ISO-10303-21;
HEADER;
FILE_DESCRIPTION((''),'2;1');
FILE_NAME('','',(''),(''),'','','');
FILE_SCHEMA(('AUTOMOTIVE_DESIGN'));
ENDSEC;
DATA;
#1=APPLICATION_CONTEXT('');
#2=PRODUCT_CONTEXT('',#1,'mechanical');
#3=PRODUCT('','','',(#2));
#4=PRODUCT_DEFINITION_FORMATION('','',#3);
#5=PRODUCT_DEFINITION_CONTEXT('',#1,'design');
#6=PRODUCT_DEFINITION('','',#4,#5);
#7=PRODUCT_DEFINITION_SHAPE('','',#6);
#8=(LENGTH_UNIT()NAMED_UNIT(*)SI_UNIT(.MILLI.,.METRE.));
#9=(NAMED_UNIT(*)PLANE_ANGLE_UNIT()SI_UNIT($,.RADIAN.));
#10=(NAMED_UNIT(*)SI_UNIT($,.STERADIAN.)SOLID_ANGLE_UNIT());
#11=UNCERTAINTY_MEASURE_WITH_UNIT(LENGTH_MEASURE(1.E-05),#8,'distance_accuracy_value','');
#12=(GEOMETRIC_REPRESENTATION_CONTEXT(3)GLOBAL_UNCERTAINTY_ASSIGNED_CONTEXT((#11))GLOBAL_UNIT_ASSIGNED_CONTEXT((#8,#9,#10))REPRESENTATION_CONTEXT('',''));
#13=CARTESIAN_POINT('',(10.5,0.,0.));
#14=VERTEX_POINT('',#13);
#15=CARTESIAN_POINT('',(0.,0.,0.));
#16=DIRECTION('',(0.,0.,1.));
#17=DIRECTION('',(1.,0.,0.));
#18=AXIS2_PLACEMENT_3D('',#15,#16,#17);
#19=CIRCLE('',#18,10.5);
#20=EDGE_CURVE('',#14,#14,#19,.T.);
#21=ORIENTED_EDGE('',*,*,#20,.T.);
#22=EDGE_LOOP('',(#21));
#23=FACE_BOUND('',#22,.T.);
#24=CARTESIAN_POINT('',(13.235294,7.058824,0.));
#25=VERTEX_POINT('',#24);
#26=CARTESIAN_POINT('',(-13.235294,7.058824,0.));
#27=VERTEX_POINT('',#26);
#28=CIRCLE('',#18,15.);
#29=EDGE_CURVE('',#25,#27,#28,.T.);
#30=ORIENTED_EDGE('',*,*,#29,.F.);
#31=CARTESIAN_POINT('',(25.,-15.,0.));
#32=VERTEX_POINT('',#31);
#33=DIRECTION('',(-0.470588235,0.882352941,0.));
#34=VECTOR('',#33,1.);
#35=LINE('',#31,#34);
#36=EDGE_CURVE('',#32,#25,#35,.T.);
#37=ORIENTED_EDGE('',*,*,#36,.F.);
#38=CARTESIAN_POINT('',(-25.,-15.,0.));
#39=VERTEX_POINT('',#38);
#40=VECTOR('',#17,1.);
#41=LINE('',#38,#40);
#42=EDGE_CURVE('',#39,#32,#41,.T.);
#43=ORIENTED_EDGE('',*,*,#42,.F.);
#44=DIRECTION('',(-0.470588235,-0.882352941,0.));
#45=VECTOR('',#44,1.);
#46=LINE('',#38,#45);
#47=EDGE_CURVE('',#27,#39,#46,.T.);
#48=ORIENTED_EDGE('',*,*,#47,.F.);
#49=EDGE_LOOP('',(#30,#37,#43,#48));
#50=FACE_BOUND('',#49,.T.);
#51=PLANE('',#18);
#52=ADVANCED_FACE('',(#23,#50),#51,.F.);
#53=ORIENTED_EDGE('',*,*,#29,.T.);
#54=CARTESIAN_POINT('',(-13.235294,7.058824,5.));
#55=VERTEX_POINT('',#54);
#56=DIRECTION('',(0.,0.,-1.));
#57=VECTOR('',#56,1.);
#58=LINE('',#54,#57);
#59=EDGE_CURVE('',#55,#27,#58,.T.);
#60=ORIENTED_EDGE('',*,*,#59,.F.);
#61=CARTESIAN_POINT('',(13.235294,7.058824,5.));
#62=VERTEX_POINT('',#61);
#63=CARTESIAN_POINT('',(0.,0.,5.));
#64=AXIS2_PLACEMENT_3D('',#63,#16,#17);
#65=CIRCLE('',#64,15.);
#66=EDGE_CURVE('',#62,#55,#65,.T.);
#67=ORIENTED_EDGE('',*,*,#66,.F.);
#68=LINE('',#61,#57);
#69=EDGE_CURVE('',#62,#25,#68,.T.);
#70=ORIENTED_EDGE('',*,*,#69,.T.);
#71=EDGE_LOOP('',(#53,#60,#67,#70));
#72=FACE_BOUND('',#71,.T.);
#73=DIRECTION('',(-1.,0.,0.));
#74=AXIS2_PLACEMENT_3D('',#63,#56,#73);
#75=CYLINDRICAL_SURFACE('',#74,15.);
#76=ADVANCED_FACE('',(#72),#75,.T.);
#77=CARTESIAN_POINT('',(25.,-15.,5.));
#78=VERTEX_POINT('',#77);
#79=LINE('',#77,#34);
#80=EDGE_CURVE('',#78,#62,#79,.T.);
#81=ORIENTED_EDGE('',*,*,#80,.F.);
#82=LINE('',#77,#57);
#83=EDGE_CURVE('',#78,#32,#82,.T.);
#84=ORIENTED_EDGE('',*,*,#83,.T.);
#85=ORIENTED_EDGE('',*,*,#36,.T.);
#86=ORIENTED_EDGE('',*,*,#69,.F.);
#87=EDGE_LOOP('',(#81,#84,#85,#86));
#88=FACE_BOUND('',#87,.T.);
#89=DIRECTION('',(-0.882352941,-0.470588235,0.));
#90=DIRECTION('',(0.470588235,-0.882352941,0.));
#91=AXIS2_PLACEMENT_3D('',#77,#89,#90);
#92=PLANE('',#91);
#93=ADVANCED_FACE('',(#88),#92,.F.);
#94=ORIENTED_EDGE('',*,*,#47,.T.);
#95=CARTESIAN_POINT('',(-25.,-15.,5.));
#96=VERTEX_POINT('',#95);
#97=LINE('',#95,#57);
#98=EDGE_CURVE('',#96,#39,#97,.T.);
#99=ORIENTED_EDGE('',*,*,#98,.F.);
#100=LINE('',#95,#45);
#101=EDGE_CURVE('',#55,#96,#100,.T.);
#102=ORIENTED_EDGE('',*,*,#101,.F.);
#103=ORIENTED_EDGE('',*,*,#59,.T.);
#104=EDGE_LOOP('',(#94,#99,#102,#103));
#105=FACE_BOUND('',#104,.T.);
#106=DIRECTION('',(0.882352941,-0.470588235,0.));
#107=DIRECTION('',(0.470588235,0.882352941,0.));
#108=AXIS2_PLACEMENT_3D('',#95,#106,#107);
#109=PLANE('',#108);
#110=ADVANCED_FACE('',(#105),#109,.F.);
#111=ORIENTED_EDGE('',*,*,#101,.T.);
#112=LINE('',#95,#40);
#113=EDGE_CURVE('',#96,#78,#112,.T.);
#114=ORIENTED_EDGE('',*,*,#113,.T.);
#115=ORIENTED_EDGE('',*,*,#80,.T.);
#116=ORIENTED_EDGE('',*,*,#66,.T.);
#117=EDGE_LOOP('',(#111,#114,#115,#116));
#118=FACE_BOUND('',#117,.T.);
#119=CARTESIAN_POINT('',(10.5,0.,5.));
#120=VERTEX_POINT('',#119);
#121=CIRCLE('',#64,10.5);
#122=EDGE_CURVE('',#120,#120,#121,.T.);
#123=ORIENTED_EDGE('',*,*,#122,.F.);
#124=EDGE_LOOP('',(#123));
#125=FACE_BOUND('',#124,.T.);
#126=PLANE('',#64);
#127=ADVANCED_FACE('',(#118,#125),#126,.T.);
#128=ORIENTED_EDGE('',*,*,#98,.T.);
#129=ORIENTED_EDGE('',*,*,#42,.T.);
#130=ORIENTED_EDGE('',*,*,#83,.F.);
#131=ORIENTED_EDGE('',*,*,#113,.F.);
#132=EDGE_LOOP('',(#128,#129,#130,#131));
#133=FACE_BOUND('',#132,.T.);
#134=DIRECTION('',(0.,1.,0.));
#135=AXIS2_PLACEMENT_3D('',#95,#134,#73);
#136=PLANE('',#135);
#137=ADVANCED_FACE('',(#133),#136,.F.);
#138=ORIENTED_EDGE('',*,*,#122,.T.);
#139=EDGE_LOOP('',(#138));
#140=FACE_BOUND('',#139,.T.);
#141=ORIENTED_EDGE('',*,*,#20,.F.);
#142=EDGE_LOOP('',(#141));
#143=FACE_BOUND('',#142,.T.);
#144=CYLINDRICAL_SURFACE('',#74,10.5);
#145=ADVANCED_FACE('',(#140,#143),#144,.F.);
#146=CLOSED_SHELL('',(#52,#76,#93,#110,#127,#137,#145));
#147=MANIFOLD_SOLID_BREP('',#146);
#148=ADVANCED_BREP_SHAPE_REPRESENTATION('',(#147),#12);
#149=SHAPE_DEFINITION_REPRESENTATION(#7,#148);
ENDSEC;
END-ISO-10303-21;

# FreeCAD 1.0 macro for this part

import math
import FreeCAD as App
import Part
import Sketcher
from FreeCAD import Vector
Q = App.Units.Quantity

doc = App.newDocument("Part")
body = doc.addObject("PartDesign::Body", "Body")

sketch1 = body.newObject("Sketcher::SketchObject", "Sketch")
sketch1.AttachmentSupport = (doc.getObject("XY_Plane"), [""])
sketch1.MapMode = "FlatFace"
sketch1.addGeometry(Part.LineSegment(Vector(-25, -15, 0), Vector(25, -15, 0)), False)
sketch1.addGeometry(Part.LineSegment(Vector(25, -15, 0), Vector(13.235294, 7.058824, 0)), False)
sketch1.addGeometry(Part.ArcOfCircle(Part.Circle(Vector(0, 0, 0), Vector(0, 0, 1), 15), math.radians(28.072487), math.radians(151.927513)), False)
sketch1.addGeometry(Part.LineSegment(Vector(-13.235294, 7.058824, 0), Vector(-25, -15, 0)), False)
sketch1.addGeometry(Part.Circle(Vector(0, 0, 0), Vector(0, 0, 1), 10.5), False)
sketch1.addConstraint(Sketcher.Constraint("Coincident", 0, 2, 1, 1))
sketch1.addConstraint(Sketcher.Constraint("Tangent", 1, 2, 2, 1))
sketch1.addConstraint(Sketcher.Constraint("Tangent", 2, 2, 3, 1))
sketch1.addConstraint(Sketcher.Constraint("Coincident", 3, 2, 0, 1))
sketch1.addConstraint(Sketcher.Constraint("Horizontal", 0))
sketch1.addConstraint(Sketcher.Constraint("Coincident", 2, 3, -1, 1))
sketch1.addConstraint(Sketcher.Constraint("Coincident", 4, 3, -1, 1))
sketch1.addConstraint(Sketcher.Constraint("Horizontal", 1, 2, 2, 2))
sketch1.addConstraint(Sketcher.Constraint("Diameter", 4, Q("21 mm")))
sketch1.addConstraint(Sketcher.Constraint("Radius", 2, Q("15 mm")))
sketch1.addConstraint(Sketcher.Constraint("DistanceX", 0, 1, 0, 2, Q("50 mm")))
sketch1.addConstraint(Sketcher.Constraint("Distance", 1, Q("25 mm")))
pad1 = body.newObject("PartDesign::Pad", "Pad")
pad1.Profile = sketch1
pad1.Length = 5

doc.recompute()
